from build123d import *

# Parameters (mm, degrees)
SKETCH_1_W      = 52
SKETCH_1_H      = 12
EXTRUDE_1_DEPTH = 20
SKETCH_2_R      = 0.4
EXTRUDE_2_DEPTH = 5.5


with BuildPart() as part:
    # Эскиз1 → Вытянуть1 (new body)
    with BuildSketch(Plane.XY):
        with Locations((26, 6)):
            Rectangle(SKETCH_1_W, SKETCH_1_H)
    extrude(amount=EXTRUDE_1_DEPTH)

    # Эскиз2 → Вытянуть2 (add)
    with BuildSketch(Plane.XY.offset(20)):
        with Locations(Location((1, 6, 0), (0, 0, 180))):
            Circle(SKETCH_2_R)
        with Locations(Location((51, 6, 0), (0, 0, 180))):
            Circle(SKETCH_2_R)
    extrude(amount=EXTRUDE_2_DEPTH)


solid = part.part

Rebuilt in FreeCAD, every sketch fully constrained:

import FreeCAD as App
import Part
import Sketcher
Q = App.Units.Quantity


def add_polygon(sketch, points):
    """Adds a closed chain of lines whose ends are joined by coincident constraints."""
    first, n = sketch.GeometryCount, len(points)
    for a, b in zip(points, points[1:] + points[:1]):
        sketch.addGeometry(Part.LineSegment(App.Vector(*a, 0), App.Vector(*b, 0)), False)
    for i in range(n):
        sketch.addConstraint(Sketcher.Constraint("Coincident", first + i, 2, first + (i + 1) % n, 1))

doc = App.newDocument("Part")
params = doc.addObject("Spreadsheet::Sheet", "Params")
for row, (alias, value) in enumerate([
    ("sketch1_width", "52 mm"),
    ("sketch1_height", "12 mm"),
    ("pad1_length", "20 mm"),
    ("sketch2_diameter", "0.8 mm"),
    ("pad2_length", "5.5 mm"),
], start=1):
    params.set(f"A{row}", alias)
    params.set(f"B{row}", "=" + value)
    params.setAlias(f"B{row}", alias)

body = doc.addObject("PartDesign::Body", "Body")

# Sketch on XY plane
sketch1 = body.newObject("Sketcher::SketchObject", "Sketch")
sketch1.AttachmentSupport = (doc.getObject("XY_Plane"), [""])
sketch1.MapMode = "FlatFace"
add_polygon(sketch1, [(0, 12), (0, 0), (52, 0), (52, 12)])  # lines 0-3
sketch1.addConstraint([
    Sketcher.Constraint("Vertical", 0),
    Sketcher.Constraint("Horizontal", 1),
    Sketcher.Constraint("Vertical", 2),
    Sketcher.Constraint("Horizontal", 3),
    Sketcher.Constraint("Coincident", 0, 2, -1, 1),
    Sketcher.Constraint("DistanceX", 1, 1, 1, 2, Q("52 mm")),
    Sketcher.Constraint("DistanceY", 0, 2, 0, 1, Q("12 mm")),
])
sketch1.setExpression("Constraints[9]", "Params.sketch1_width")
sketch1.setExpression("Constraints[10]", "Params.sketch1_height")
pad1 = body.newObject("PartDesign::Pad", "Pad")
pad1.Profile = sketch1
pad1.setExpression("Length", "Params.pad1_length")

# Sketch on XY plane
sketch2 = body.newObject("Sketcher::SketchObject", "Sketch001")
sketch2.AttachmentSupport = (doc.getObject("XY_Plane"), [""])
sketch2.MapMode = "FlatFace"
sketch2.AttachmentOffset = App.Placement(App.Vector(0, 0, 20), App.Rotation())
sketch2.addGeometry([
    Part.Circle(App.Vector(1, 6, 0), App.Vector(0, 0, 1), 0.4),
    Part.Circle(App.Vector(51, 6, 0), App.Vector(0, 0, 1), 0.4),
], False)
sketch2.addConstraint([
    Sketcher.Constraint("Equal", 0, 1),
    Sketcher.Constraint("Horizontal", 0, 3, 1, 3),
    Sketcher.Constraint("Diameter", 0, Q("0.8 mm")),
    Sketcher.Constraint("DistanceX", -1, 1, 0, 3, Q("1 mm")),
    Sketcher.Constraint("DistanceY", -1, 1, 0, 3, Q("6 mm")),
    Sketcher.Constraint("DistanceX", -1, 1, 1, 3, Q("51 mm")),
])
sketch2.setExpression("Constraints[2]", "Params.sketch2_diameter")
pad2 = body.newObject("PartDesign::Pad", "Pad001")
pad2.Profile = sketch2
pad2.setExpression("Length", "Params.pad2_length")

doc.recompute()
